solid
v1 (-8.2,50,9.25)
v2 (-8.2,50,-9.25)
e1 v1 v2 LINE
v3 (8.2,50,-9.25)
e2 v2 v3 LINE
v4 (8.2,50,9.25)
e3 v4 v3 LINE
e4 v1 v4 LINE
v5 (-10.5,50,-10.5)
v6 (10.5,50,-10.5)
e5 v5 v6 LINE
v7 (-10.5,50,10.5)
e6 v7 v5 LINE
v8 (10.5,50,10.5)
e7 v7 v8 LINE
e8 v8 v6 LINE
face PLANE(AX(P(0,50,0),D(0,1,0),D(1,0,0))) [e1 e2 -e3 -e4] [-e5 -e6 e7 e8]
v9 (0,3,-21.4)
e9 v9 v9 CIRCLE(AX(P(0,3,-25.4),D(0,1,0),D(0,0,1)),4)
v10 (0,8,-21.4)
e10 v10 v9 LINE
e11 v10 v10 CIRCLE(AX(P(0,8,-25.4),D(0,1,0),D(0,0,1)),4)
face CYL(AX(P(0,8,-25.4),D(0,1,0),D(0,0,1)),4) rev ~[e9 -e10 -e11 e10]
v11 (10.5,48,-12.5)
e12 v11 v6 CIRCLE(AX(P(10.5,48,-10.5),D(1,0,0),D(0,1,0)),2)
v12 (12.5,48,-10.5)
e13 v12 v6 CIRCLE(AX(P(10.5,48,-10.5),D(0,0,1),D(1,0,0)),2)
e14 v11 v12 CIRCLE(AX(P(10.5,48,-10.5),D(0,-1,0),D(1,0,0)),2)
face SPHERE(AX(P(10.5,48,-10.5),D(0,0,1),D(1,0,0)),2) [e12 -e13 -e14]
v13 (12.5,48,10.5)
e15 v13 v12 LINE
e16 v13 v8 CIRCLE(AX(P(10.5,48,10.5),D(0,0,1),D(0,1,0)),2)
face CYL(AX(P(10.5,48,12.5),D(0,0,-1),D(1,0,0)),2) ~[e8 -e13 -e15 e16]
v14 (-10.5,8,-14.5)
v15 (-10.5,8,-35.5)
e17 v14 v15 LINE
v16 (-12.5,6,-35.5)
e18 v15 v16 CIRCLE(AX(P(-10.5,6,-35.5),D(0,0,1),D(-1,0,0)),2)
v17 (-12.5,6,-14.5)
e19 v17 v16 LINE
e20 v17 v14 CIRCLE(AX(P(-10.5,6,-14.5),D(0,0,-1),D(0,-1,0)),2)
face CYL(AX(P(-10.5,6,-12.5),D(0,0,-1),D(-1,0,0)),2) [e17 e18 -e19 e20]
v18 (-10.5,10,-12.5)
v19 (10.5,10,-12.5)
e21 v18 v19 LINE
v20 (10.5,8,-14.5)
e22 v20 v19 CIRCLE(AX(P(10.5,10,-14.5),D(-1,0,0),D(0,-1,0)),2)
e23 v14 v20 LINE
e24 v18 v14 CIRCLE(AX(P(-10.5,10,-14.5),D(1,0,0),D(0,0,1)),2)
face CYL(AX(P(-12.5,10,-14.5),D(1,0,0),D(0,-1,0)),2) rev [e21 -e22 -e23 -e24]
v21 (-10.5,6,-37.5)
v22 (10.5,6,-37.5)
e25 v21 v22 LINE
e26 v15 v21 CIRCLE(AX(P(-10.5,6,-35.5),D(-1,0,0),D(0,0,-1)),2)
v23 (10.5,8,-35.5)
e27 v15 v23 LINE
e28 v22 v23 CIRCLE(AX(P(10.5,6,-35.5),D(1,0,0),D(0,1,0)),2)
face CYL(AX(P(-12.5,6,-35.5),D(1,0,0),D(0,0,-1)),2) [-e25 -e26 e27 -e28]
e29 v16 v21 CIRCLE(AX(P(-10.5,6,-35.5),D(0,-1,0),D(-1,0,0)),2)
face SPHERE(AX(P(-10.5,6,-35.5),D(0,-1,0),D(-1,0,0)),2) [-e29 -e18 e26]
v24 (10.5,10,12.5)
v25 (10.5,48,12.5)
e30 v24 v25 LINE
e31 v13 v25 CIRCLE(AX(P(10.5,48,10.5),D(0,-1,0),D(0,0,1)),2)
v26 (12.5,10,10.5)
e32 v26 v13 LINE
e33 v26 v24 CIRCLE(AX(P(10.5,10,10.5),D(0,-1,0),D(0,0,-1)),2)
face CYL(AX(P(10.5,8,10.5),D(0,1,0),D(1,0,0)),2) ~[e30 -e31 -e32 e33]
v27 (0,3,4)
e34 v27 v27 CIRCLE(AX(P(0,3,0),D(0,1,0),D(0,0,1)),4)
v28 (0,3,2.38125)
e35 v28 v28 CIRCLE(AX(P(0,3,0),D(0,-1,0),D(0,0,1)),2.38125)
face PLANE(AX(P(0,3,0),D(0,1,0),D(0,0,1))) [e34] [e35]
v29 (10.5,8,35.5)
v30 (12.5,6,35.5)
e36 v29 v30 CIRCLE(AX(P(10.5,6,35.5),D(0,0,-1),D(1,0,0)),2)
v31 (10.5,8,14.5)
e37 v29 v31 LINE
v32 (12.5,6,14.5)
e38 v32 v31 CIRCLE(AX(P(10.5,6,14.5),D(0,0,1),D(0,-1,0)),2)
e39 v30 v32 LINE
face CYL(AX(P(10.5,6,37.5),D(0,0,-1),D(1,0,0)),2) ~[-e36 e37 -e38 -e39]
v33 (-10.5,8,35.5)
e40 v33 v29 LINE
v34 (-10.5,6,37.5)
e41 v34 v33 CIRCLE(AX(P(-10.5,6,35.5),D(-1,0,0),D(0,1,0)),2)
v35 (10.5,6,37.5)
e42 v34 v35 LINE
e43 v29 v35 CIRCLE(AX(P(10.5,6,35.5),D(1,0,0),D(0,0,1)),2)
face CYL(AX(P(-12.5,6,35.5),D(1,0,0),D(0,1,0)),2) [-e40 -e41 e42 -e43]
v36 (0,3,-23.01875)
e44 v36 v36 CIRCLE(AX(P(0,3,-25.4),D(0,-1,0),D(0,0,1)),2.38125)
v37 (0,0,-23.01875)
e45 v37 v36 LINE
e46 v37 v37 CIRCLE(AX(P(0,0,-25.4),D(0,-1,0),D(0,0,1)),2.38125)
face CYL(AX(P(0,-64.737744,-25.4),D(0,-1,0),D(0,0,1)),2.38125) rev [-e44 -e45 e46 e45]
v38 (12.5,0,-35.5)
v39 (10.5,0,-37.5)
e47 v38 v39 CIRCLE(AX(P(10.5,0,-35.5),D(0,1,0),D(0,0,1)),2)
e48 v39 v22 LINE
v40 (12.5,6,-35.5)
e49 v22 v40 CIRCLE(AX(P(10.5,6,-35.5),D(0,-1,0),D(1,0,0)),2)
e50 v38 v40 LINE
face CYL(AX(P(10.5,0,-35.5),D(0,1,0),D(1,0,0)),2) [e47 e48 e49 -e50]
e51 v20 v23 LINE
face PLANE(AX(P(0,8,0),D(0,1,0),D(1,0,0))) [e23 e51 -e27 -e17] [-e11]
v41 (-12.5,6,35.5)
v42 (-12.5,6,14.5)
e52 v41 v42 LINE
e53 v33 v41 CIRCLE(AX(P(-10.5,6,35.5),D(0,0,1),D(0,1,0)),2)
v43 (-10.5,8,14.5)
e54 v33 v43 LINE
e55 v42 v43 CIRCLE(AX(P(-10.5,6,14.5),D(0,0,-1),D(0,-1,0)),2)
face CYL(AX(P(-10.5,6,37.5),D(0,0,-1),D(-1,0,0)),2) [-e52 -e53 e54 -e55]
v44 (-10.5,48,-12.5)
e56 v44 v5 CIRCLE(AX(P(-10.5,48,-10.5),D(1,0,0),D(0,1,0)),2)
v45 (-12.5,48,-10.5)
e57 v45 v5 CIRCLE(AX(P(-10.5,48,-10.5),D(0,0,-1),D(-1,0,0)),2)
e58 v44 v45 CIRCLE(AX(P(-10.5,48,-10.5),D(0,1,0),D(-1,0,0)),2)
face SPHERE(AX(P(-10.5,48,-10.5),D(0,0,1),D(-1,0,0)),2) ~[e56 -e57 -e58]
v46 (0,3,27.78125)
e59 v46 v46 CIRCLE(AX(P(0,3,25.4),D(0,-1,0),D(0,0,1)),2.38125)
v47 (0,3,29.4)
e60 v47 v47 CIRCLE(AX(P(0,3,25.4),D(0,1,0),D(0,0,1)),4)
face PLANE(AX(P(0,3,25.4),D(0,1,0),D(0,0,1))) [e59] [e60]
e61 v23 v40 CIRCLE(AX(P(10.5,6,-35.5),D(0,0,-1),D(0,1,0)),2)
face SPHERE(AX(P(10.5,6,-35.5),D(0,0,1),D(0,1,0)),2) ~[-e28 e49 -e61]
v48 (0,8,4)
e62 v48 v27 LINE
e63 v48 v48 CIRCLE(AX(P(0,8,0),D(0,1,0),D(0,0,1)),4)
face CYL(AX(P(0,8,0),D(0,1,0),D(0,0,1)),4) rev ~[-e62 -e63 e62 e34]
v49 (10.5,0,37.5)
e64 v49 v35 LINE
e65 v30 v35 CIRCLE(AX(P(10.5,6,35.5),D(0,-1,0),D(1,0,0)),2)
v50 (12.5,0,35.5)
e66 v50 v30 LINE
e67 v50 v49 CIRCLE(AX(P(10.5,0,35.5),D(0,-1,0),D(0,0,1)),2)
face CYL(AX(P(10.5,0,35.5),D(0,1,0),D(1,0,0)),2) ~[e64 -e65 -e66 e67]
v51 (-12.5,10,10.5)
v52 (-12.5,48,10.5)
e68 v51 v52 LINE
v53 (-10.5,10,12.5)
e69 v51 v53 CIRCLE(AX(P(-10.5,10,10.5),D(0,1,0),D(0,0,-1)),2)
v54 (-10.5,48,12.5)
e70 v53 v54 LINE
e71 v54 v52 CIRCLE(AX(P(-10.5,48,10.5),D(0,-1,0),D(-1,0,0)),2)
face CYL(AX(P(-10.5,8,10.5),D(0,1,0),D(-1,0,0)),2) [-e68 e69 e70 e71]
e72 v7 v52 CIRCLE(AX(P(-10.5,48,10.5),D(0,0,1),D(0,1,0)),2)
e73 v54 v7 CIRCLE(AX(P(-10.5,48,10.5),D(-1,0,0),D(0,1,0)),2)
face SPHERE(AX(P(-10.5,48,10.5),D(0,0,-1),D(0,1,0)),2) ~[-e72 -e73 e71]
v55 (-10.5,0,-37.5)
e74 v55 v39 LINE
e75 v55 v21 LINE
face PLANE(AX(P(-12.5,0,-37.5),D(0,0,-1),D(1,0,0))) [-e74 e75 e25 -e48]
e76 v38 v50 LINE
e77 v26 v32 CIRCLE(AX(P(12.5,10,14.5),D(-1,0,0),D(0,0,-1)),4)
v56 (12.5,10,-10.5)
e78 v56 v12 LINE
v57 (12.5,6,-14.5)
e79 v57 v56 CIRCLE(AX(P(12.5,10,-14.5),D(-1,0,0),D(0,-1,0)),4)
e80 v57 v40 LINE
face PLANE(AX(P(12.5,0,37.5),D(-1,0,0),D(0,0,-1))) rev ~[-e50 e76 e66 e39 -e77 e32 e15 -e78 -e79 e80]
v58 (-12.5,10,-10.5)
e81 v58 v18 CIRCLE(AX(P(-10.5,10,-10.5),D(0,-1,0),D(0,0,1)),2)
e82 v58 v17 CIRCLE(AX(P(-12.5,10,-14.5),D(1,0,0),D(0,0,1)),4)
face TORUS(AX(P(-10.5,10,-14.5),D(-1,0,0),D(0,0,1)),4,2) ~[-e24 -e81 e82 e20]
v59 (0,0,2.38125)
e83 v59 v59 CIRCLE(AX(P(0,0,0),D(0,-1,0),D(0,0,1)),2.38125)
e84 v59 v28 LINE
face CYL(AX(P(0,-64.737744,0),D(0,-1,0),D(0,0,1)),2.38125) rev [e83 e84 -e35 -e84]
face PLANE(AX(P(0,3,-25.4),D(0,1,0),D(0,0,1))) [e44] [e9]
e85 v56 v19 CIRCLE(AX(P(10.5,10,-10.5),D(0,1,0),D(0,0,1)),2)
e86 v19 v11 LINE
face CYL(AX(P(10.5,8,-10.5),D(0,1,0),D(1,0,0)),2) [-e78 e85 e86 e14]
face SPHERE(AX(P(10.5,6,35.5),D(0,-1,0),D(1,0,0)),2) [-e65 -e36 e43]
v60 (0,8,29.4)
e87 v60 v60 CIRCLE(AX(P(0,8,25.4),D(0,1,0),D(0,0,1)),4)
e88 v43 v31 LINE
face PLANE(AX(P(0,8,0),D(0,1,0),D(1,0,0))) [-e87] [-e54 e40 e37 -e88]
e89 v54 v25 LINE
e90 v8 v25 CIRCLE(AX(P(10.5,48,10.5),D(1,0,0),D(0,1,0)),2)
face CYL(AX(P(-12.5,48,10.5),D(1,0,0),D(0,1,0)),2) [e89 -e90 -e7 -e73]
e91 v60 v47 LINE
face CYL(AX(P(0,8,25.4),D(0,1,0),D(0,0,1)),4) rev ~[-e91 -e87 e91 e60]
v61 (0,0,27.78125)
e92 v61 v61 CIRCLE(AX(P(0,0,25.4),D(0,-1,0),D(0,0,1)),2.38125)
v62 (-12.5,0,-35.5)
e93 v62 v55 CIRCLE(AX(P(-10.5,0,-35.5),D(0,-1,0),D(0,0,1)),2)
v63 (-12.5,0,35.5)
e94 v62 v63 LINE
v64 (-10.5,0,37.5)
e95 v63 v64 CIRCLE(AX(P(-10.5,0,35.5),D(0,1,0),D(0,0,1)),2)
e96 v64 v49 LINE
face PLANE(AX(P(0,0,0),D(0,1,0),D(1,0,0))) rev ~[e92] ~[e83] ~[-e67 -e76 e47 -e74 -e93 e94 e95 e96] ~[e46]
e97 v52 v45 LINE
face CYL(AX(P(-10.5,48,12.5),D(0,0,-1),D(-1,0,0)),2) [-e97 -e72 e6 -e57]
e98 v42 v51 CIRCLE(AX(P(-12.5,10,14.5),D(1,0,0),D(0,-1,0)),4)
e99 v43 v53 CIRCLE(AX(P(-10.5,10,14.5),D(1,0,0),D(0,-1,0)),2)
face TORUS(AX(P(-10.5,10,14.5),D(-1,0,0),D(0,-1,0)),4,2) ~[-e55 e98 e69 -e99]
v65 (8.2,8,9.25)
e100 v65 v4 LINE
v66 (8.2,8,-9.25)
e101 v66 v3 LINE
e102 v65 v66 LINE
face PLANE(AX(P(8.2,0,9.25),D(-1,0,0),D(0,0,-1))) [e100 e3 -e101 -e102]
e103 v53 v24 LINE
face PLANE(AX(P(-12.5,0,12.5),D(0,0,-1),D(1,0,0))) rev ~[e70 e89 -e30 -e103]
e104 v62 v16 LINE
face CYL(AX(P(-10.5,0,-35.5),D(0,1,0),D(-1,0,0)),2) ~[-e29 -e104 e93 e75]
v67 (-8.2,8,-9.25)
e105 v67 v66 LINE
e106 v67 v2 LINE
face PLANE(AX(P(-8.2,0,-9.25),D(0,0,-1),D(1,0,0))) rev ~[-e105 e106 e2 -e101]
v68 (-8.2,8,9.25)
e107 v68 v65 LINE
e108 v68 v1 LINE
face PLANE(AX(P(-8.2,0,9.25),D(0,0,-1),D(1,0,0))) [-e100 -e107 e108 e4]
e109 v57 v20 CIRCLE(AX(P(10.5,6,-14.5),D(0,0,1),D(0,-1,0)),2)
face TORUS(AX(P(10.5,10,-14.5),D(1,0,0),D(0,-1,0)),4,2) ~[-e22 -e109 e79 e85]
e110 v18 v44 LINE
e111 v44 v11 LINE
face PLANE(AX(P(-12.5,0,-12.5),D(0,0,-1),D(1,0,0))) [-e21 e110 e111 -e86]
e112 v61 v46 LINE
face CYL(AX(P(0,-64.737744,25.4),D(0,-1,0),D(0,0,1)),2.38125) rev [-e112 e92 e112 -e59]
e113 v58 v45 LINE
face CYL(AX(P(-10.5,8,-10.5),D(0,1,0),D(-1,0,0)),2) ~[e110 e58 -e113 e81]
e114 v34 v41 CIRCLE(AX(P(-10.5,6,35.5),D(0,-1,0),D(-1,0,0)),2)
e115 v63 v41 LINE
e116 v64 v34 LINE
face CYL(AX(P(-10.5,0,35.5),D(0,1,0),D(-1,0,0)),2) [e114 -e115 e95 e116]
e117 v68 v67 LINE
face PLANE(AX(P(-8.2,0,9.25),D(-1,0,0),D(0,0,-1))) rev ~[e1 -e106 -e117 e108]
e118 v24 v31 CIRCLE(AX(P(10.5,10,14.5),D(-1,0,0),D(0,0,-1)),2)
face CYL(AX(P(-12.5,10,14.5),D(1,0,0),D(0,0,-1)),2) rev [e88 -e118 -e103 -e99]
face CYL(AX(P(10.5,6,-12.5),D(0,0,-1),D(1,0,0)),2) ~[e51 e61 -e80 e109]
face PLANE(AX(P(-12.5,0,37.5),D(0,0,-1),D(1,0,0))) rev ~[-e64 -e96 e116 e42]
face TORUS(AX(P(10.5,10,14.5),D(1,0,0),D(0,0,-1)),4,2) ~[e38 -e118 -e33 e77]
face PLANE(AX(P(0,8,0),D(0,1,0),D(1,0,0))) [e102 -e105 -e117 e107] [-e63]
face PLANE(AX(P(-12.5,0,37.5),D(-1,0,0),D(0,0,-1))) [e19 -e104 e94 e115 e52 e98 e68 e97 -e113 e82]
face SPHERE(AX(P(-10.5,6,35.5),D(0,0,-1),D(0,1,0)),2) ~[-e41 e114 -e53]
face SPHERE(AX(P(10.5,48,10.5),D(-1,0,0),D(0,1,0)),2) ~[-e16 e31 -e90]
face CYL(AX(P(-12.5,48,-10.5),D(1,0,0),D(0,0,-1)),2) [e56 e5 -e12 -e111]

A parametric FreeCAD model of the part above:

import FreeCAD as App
import Part
import Sketcher
Q = App.Units.Quantity


def edges_at(feature, points):
    """Names of the edges that pass closest to the given points."""
    edges = feature.Shape.Edges
    near = lambda p: min(range(len(edges)), key=lambda i: edges[i].distToShape(Part.Vertex(*p))[0])
    return sorted({f"Edge{near(p) + 1}" for p in points})


def add_polygon(sketch, points):
    """Adds a closed chain of lines whose ends are joined by coincident constraints."""
    first, n = sketch.GeometryCount, len(points)
    for a, b in zip(points, points[1:] + points[:1]):
        sketch.addGeometry(Part.LineSegment(App.Vector(*a, 0), App.Vector(*b, 0)), False)
    for i in range(n):
        sketch.addConstraint(Sketcher.Constraint("Coincident", first + i, 2, first + (i + 1) % n, 1))

doc = App.newDocument("Part")
body = doc.addObject("PartDesign::Body", "Body")

# Sketch on XZ plane
sketch1 = doc.addObject("Sketcher::SketchObject", "Sketch")
body.addObject(sketch1)
sketch1.AttachmentSupport = (doc.XZ_Plane, [""])
sketch1.MapMode = "FlatFace"
add_polygon(sketch1, [(-12.5, -12.5), (-12.5, 12.5), (12.5, 12.5), (12.5, -12.5)])  # lines 0-3
add_polygon(sketch1, [(8.2, 9.25), (-8.2, 9.25), (-8.2, -9.25), (8.2, -9.25)])  # lines 4-7
sketch1.addConstraint([
    Sketcher.Constraint("Vertical", 0),
    Sketcher.Constraint("Horizontal", 1),
    Sketcher.Constraint("Vertical", 2),
    Sketcher.Constraint("Horizontal", 3),
    Sketcher.Constraint("Horizontal", 4),
    Sketcher.Constraint("Vertical", 5),
    Sketcher.Constraint("Horizontal", 6),
    Sketcher.Constraint("Vertical", 7),
    Sketcher.Constraint("Symmetric", 0, 2, 2, 2, -1, 1),
    Sketcher.Constraint("Symmetric", 4, 2, 6, 2, -1, 1),
    Sketcher.Constraint("Equal", 3, 0),
    Sketcher.Constraint("DistanceX", 1, 1, 1, 2, Q("25 mm")),
    Sketcher.Constraint("DistanceX", 4, 2, 4, 1, Q("16.4 mm")),
    Sketcher.Constraint("DistanceY", 5, 2, 5, 1, Q("18.5 mm")),
])
pad1 = doc.addObject("PartDesign::Pad", "Pad")
body.addObject(pad1)
pad1.Profile = sketch1
pad1.Length = 50
pad1.Reversed = True

# Sketch on XZ plane
sketch2 = doc.addObject("Sketcher::SketchObject", "Sketch001")
body.addObject(sketch2)
sketch2.AttachmentSupport = (doc.XZ_Plane, [""])
sketch2.MapMode = "FlatFace"
add_polygon(sketch2, [(-12.5, -37.5), (-12.5, 37.5), (12.5, 37.5), (12.5, -37.5)])  # lines 0-3
sketch2.addConstraint([
    Sketcher.Constraint("Vertical", 0),
    Sketcher.Constraint("Horizontal", 1),
    Sketcher.Constraint("Vertical", 2),
    Sketcher.Constraint("Horizontal", 3),
    Sketcher.Constraint("Symmetric", 0, 2, 2, 2, -1, 1),
    Sketcher.Constraint("DistanceX", 1, 1, 1, 2, Q("25 mm")),
    Sketcher.Constraint("DistanceY", 0, 1, 0, 2, Q("75 mm")),
])
pad2 = doc.addObject("PartDesign::Pad", "Pad001")
body.addObject(pad2)
pad2.Profile = sketch2
pad2.Length = 8
pad2.Reversed = True
doc.recompute()

fillet = doc.addObject("PartDesign::Fillet", "Fillet")
body.addObject(fillet)
fillet.Base = (pad2, edges_at(pad2, [
    (-12.5, 50, 0),
    (0, 50, 12.5),
    (12.5, 4, 37.5),
    (-12.5, 4, -37.5),
    (-12.5, 8, -25),
    (0, 8, -12.5),
    (12.5, 8, -25),
    (0, 8, -37.5),
    (12.5, 8, 25),
    (0, 8, 12.5),
    (-12.5, 8, 25),
    (0, 8, 37.5),
    (12.5, 4, -37.5),
    (-12.5, 4, 37.5),
    (12.5, 50, 0),
    (12.5, 29, 12.5),
    (-12.5, 29, 12.5),
    (-12.5, 29, -12.5),
    (12.5, 29, -12.5),
    (0, 50, -12.5),
]))
fillet.Radius = 2

# Sketch on XZ plane
sketch3 = doc.addObject("Sketcher::SketchObject", "Sketch002")
body.addObject(sketch3)
sketch3.AttachmentSupport = (doc.XZ_Plane, [""])
sketch3.MapMode = "FlatFace"
sketch3.AttachmentOffset = App.Placement(App.Vector(0, 0, -8), App.Rotation())
sketch3.addGeometry([
    Part.Circle(App.Vector(0, 0, 0), App.Vector(0, 0, 1), 4),
    Part.Circle(App.Vector(0, -25.4, 0), App.Vector(0, 0, 1), 4),
    Part.Circle(App.Vector(0, 25.4, 0), App.Vector(0, 0, 1), 4),
], False)
sketch3.addConstraint([
    Sketcher.Constraint("Coincident", 0, 3, -1, 1),
    Sketcher.Constraint("Equal", 0, 1),
    Sketcher.Constraint("Equal", 1, 2),
    Sketcher.Constraint("Symmetric", 1, 3, 2, 3, -1, 1),
    Sketcher.Constraint("PointOnObject", 1, 3, -2),
    Sketcher.Constraint("Diameter", 0, Q("8 mm")),
    Sketcher.Constraint("DistanceY", 1, 3, -1, 1, Q("25.4 mm")),
])
pocket1 = doc.addObject("PartDesign::Pocket", "Pocket")
body.addObject(pocket1)
pocket1.Profile = sketch3
pocket1.Length = 5
pocket1.Reversed = True

# Sketch on XZ plane
sketch4 = doc.addObject("Sketcher::SketchObject", "Sketch003")
body.addObject(sketch4)
sketch4.AttachmentSupport = (doc.XZ_Plane, [""])
sketch4.MapMode = "FlatFace"
sketch4.addGeometry([
    Part.Circle(App.Vector(0, 0, 0), App.Vector(0, 0, 1), 2.38125),
    Part.Circle(App.Vector(0, -25.4, 0), App.Vector(0, 0, 1), 2.38125),
    Part.Circle(App.Vector(0, 25.4, 0), App.Vector(0, 0, 1), 2.38125),
], False)
sketch4.addConstraint([
    Sketcher.Constraint("Coincident", 0, 3, -1, 1),
    Sketcher.Constraint("Equal", 0, 1),
    Sketcher.Constraint("Equal", 1, 2),
    Sketcher.Constraint("Symmetric", 1, 3, 2, 3, -1, 1),
    Sketcher.Constraint("PointOnObject", 1, 3, -2),
    Sketcher.Constraint("Diameter", 0, Q("4.7625 mm")),
    Sketcher.Constraint("DistanceY", 1, 3, -1, 1, Q("25.4 mm")),
])
pocket2 = doc.addObject("PartDesign::Pocket", "Pocket001")
body.addObject(pocket2)
pocket2.Profile = sketch4
pocket2.Type = "ThroughAll"
pocket2.Midplane = True

doc.recompute()
